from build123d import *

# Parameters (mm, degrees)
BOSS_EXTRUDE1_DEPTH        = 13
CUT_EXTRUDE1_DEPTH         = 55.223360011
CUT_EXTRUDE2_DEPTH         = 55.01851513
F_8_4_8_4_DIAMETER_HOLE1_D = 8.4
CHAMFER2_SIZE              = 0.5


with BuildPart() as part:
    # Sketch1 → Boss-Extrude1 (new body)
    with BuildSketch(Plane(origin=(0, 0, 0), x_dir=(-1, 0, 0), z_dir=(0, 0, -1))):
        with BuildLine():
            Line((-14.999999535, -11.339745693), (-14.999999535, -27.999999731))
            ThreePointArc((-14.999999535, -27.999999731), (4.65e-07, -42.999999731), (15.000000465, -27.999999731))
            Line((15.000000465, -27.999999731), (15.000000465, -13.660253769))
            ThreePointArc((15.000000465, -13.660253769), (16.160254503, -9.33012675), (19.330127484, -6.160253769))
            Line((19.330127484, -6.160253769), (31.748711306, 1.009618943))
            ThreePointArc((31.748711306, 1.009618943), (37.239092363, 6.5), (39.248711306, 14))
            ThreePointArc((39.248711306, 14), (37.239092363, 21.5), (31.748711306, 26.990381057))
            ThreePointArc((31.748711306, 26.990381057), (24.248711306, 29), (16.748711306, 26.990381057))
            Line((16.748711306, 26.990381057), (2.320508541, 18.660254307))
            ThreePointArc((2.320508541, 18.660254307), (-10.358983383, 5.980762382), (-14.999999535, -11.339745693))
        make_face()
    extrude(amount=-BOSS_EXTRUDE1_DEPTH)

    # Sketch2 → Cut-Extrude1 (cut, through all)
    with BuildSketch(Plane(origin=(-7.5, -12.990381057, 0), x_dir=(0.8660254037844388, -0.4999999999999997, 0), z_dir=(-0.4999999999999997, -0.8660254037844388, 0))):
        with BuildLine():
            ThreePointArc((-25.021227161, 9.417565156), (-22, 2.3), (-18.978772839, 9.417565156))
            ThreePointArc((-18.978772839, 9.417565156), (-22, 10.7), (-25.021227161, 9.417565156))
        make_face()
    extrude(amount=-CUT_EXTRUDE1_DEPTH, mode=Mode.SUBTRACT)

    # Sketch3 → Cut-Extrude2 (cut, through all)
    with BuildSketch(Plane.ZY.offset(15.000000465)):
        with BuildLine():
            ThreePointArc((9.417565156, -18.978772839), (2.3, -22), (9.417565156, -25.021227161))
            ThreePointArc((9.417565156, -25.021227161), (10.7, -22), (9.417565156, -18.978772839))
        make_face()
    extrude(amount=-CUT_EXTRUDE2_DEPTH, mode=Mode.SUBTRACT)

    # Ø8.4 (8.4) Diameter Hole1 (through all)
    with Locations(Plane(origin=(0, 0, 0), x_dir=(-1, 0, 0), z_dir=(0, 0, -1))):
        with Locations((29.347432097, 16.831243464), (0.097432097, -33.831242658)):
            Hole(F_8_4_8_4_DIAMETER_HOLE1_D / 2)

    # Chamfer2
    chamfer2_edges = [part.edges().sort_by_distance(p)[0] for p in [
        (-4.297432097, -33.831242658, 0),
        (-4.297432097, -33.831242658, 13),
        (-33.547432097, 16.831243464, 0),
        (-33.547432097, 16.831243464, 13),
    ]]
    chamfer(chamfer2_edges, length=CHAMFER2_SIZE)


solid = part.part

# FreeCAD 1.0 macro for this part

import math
import FreeCAD as App
import Part
import Sketcher

V = App.Vector
Q = App.Units.Quantity


def edges_at(feature, points):
    """Names of the edges that pass closest to the given points."""
    edges = feature.Shape.Edges
    near = lambda p: min(range(len(edges)), key=lambda i: edges[i].distToShape(Part.Vertex(*p))[0])
    return sorted({f"Edge{near(p) + 1}" for p in points})

doc = App.newDocument("Part")
body = doc.addObject("PartDesign::Body", "Body")

sketch1 = doc.addObject("Sketcher::SketchObject", "Sketch")
body.addObject(sketch1)
sketch1.AttachmentSupport = (doc.XY_Plane, [""])
sketch1.MapMode = "FlatFace"
sketch1.addGeometry([
    Part.LineSegment(V(15, -11, 0), V(15, -28, 0)),
    Part.ArcOfCircle(Part.Circle(V(0, -28, 0), V(0, 0, 1), 15), math.radians(180), math.radians(360)),
    Part.LineSegment(V(-15, -28, 0), V(-15, -14, 0)),
    Part.ArcOfCircle(Part.Circle(V(-24, -14, 0), V(0, 0, 1), 9), math.radians(0), math.radians(60)),
    Part.LineSegment(V(-19, -6, 0), V(-32, 1, 0)),
    Part.ArcOfCircle(Part.Circle(V(-24, 14, 0), V(0, 0, 1), 15), math.radians(180), math.radians(240)),
    Part.ArcOfCircle(Part.Circle(V(-24, 14, 0), V(0, 0, 1), 15), math.radians(120), math.radians(180)),
    Part.ArcOfCircle(Part.Circle(V(-24, 14, 0), V(0, 0, 1), 15), math.radians(60), math.radians(120)),
    Part.LineSegment(V(-17, 27, 0), V(-2, 19, 0)),
    Part.ArcOfCircle(Part.Circle(V(-20, -11, 0), V(0, 0, 1), 35), math.radians(0), math.radians(60)),
], False)
sketch1.addConstraint([
    Sketcher.Constraint("Tangent", 0, 2, 1, 2),
    Sketcher.Constraint("Tangent", 1, 1, 2, 1),
    Sketcher.Constraint("Tangent", 2, 2, 3, 1),
    Sketcher.Constraint("Tangent", 3, 2, 4, 1),
    Sketcher.Constraint("Tangent", 4, 2, 5, 2),
    Sketcher.Constraint("Tangent", 5, 1, 6, 2),
    Sketcher.Constraint("Tangent", 6, 1, 7, 2),
    Sketcher.Constraint("Tangent", 7, 1, 8, 1),
    Sketcher.Constraint("Tangent", 8, 2, 9, 2),
    Sketcher.Constraint("Tangent", 9, 1, 0, 1),
    Sketcher.Constraint("Vertical", 0),
    Sketcher.Constraint("Vertical", 2),
    Sketcher.Constraint("Coincident", 7, 3, 5, 3),
    Sketcher.Constraint("Equal", 1, 5),
    Sketcher.Constraint("PointOnObject", 1, 3, -2),
    Sketcher.Constraint("Parallel", 4, 8),
    Sketcher.Constraint("Horizontal", 7, 3, 5, 1),
    Sketcher.Constraint("Horizontal", 6, 1, 7, 1),
    Sketcher.Constraint("Radius", 1, Q("15 mm")),
    Sketcher.Constraint("Angle", 4, Q("150 deg")),
    Sketcher.Constraint("DistanceY", 1, 3, -1, 1, Q("28 mm")),
    Sketcher.Constraint("DistanceY", -1, 1, 5, 3, Q("14 mm")),
    Sketcher.Constraint("DistanceY", 9, 1, 8, 2, Q("30 mm")),
    Sketcher.Constraint("DistanceY", 2, 2, 3, 2, Q("7.5 mm")),
    Sketcher.Constraint("DistanceY", 0, 2, 0, 1, Q("16.660254 mm")),
])
pad1 = doc.addObject("PartDesign::Pad", "Pad")
body.addObject(pad1)
pad1.Profile = sketch1
pad1.Length = 13

sketch2 = doc.addObject("Sketcher::SketchObject", "Sketch001")
body.addObject(sketch2)
sketch2.Placement = App.Placement(V(-7.5, -12.990381, 0), App.Rotation(V(0.866025404, -0.5, 0), V(0, 0, 1), V(-0.5, -0.866025404, 0), "ZXY"))
sketch2.addGeometry([
    Part.ArcOfCircle(Part.Circle(V(-22, 6.5, 0), V(0, 0, 1), 4.2), math.radians(136), math.radians(404)),
    Part.ArcOfCircle(Part.Circle(V(-22, 6.5, 0), V(0, 0, 1), 4.2), math.radians(44), math.radians(136)),
], False)
sketch2.addConstraint([
    Sketcher.Constraint("Tangent", 0, 1, 1, 2),
    Sketcher.Constraint("Coincident", 1, 1, 0, 2),
    Sketcher.Constraint("Horizontal", 0, 1, 1, 1),
    Sketcher.Constraint("Radius", 0, Q("4.2 mm")),
    Sketcher.Constraint("DistanceX", 0, 3, -1, 1, Q("22 mm")),
    Sketcher.Constraint("DistanceY", -1, 1, 0, 3, Q("6.5 mm")),
    Sketcher.Constraint("DistanceX", 0, 1, -1, 1, Q("25.021227 mm")),
])
pocket1 = doc.addObject("PartDesign::Pocket", "Pocket")
body.addObject(pocket1)
pocket1.Profile = sketch2
pocket1.Type = "ThroughAll"

sketch3 = doc.addObject("Sketcher::SketchObject", "Sketch002")
body.addObject(sketch3)
sketch3.AttachmentSupport = (doc.YZ_Plane, [""])
sketch3.MapMode = "FlatFace"
sketch3.AttachmentOffset = App.Placement(V(0, 0, -15), App.Rotation())
sketch3.addGeometry([
    Part.ArcOfCircle(Part.Circle(V(-22, 6.5, 0), V(0, 0, 1), 4.2), math.radians(136), math.radians(404)),
    Part.ArcOfCircle(Part.Circle(V(-22, 6.5, 0), V(0, 0, 1), 4.2), math.radians(44), math.radians(136)),
], False)
sketch3.addConstraint([
    Sketcher.Constraint("Tangent", 0, 1, 1, 2),
    Sketcher.Constraint("Coincident", 1, 1, 0, 2),
    Sketcher.Constraint("Horizontal", 0, 1, 1, 1),
    Sketcher.Constraint("Radius", 0, Q("4.2 mm")),
    Sketcher.Constraint("DistanceX", 0, 3, -1, 1, Q("22 mm")),
    Sketcher.Constraint("DistanceY", -1, 1, 0, 3, Q("6.5 mm")),
    Sketcher.Constraint("DistanceX", 0, 1, -1, 1, Q("25.021227 mm")),
])
pocket2 = doc.addObject("PartDesign::Pocket", "Pocket001")
body.addObject(pocket2)
pocket2.Profile = sketch3
pocket2.Type = "ThroughAll"
pocket2.Reversed = True

sketch4 = doc.addObject("Sketcher::SketchObject", "Sketch003")
body.addObject(sketch4)
sketch4.AttachmentSupport = (doc.XY_Plane, [""])
sketch4.MapMode = "FlatFace"
sketch4.addGeometry([
    Part.Circle(V(-29.3, 16.8, 0), V(0, 0, 1), 4.2),
    Part.Circle(V(-0.1, -33.8, 0), V(0, 0, 1), 4.2),
], False)
sketch4.addConstraint([
    Sketcher.Constraint("Equal", 0, 1),
    Sketcher.Constraint("Diameter", 0, Q("8.4 mm")),
    Sketcher.Constraint("DistanceX", 0, 3, 1, 3, Q("29.25 mm")),
    Sketcher.Constraint("DistanceX", 0, 3, -1, 1, Q("29.347432 mm")),
    Sketcher.Constraint("DistanceY", -1, 1, 0, 3, Q("16.831243 mm")),
    Sketcher.Constraint("DistanceY", 1, 3, -1, 1, Q("33.831243 mm")),
])
doc.recompute()
hole = doc.addObject("PartDesign::Hole", "Hole")
body.addObject(hole)
hole.Profile = sketch4
hole.ThreadType = "None"
hole.Diameter = 8.4
hole.DepthType = "ThroughAll"
hole.Reversed = True
doc.recompute()

chamfer = doc.addObject("PartDesign::Chamfer", "Chamfer")
body.addObject(chamfer)
chamfer.Base = (hole, edges_at(hole, [
    (-4.297, -33.831, 0),
    (-4.297, -33.831, 13),
    (-33.547, 16.831, 0),
    (-33.547, 16.831, 13),
]))
chamfer.Size = 0.5

doc.recompute()
